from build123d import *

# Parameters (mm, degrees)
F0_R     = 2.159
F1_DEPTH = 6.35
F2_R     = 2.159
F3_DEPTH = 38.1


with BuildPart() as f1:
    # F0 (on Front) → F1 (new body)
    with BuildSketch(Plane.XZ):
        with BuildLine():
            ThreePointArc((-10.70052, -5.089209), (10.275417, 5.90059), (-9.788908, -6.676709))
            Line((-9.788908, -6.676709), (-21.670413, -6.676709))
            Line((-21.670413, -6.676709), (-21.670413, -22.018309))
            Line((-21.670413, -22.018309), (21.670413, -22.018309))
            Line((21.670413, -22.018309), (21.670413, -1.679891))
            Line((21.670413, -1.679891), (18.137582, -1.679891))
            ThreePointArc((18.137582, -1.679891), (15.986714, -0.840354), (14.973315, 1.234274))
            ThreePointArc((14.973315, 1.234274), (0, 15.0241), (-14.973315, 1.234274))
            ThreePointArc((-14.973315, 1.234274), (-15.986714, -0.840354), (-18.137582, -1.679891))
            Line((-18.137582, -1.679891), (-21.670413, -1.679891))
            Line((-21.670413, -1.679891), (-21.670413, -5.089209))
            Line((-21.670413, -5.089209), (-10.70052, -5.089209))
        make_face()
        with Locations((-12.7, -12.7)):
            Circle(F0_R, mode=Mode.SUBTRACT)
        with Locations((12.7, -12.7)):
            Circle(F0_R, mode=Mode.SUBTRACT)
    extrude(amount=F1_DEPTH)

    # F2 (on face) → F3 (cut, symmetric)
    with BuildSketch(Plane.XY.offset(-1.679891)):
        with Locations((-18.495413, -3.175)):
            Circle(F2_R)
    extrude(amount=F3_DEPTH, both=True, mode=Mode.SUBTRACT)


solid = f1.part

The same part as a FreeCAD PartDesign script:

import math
import FreeCAD as App
import Part
import Sketcher
from FreeCAD import Vector
Q = App.Units.Quantity

doc = App.newDocument("Part")
body = doc.addObject("PartDesign::Body", "Body")

# Sketch on XZ plane
sketch1 = body.newObject("Sketcher::SketchObject", "Sketch")
sketch1.AttachmentSupport = (doc.getObject("XZ_Plane"), [""])
sketch1.MapMode = "FlatFace"
sketch1.addGeometry([
    Part.ArcOfCircle(Part.Circle(Vector(0, 0, 0), Vector(0, 0, 1), 11.8), math.radians(-146), math.radians(205)),  # 0
    Part.LineSegment(Vector(-9.8, -6.7, 0), Vector(-21.7, -6.7, 0)),  # 1
    Part.LineSegment(Vector(-21.7, -6.7, 0), Vector(-21.7, -22, 0)),  # 2
    Part.LineSegment(Vector(-21.7, -22, 0), Vector(21.7, -22, 0)),  # 3
    Part.LineSegment(Vector(21.7, -22, 0), Vector(21.7, -1.7, 0)),  # 4
    Part.LineSegment(Vector(21.7, -1.7, 0), Vector(18.1, -1.7, 0)),  # 5
    Part.ArcOfCircle(Part.Circle(Vector(18.1, 1.5, 0), Vector(0, 0, 1), 3.2), math.radians(-175), math.radians(-90)),  # 6
    Part.ArcOfCircle(Part.Circle(Vector(0, 0, 0), Vector(0, 0, 1), 15), math.radians(5), math.radians(175)),  # 7
    Part.ArcOfCircle(Part.Circle(Vector(-18.1, 1.5, 0), Vector(0, 0, 1), 3.2), math.radians(-90), math.radians(-5)),  # 8
    Part.LineSegment(Vector(-18.1, -1.7, 0), Vector(-21.7, -1.7, 0)),  # 9
    Part.LineSegment(Vector(-21.7, -1.7, 0), Vector(-21.7, -5.1, 0)),  # 10
    Part.LineSegment(Vector(-21.7, -5.1, 0), Vector(-10.7, -5.1, 0)),  # 11
    Part.Circle(Vector(-12.7, -12.7, 0), Vector(0, 0, 1), 2.2),  # 12
    Part.Circle(Vector(12.7, -12.7, 0), Vector(0, 0, 1), 2.2),  # 13
], False)
sketch1.addConstraint([
    Sketcher.Constraint("Coincident", 0, 1, 1, 1),
    Sketcher.Constraint("Coincident", 1, 2, 2, 1),
    Sketcher.Constraint("Coincident", 2, 2, 3, 1),
    Sketcher.Constraint("Coincident", 3, 2, 4, 1),
    Sketcher.Constraint("Coincident", 4, 2, 5, 1),
    Sketcher.Constraint("Tangent", 5, 2, 6, 2),
    Sketcher.Constraint("Tangent", 6, 1, 7, 1),
    Sketcher.Constraint("Tangent", 7, 2, 8, 2),
    Sketcher.Constraint("Tangent", 8, 1, 9, 1),
    Sketcher.Constraint("Coincident", 9, 2, 10, 1),
    Sketcher.Constraint("Coincident", 10, 2, 11, 1),
    Sketcher.Constraint("Coincident", 11, 2, 0, 2),
    Sketcher.Constraint("Horizontal", 1),
    Sketcher.Constraint("Vertical", 2),
    Sketcher.Constraint("Horizontal", 3),
    Sketcher.Constraint("Vertical", 4),
    Sketcher.Constraint("Horizontal", 5),
    Sketcher.Constraint("Horizontal", 9),
    Sketcher.Constraint("Vertical", 10),
    Sketcher.Constraint("Horizontal", 11),
    Sketcher.Constraint("Coincident", 0, 3, -1, 1),
    Sketcher.Constraint("Coincident", 7, 3, -1, 1),
    Sketcher.Constraint("Equal", 6, 8),
    Sketcher.Constraint("Equal", 12, 13),
    Sketcher.Constraint("Symmetric", 12, 3, 13, 3, -2),
    Sketcher.Constraint("Symmetric", 4, 2, 9, 2, -2),
    Sketcher.Constraint("Vertical", 2, 2, 9, 2),
    Sketcher.Constraint("Diameter", 12, Q("0.17 in")),
    Sketcher.Constraint("Radius", 6, Q("0.125 in")),
    Sketcher.Constraint("DistanceX", 12, 3, 13, 3, Q("1 in")),
    Sketcher.Constraint("DistanceY", 12, 3, -1, 1, Q("0.5 in")),
    Sketcher.Constraint("Radius", 0, Q("0.4665 in")),
    Sketcher.Constraint("Radius", 7, Q("0.5915 in")),
    Sketcher.Constraint("DistanceY", 2, 2, 2, 1, Q("0.604 in")),
    Sketcher.Constraint("DistanceY", 1, 2, 10, 2, Q("0.0625 in")),
    Sketcher.Constraint("DistanceX", 5, 2, 5, 1, 3.532831),
    Sketcher.Constraint("DistanceY", 10, 2, 10, 1, 3.409318),
    Sketcher.Constraint("DistanceX", 1, 2, 1, 1, 11.881505),
])
pad1 = body.newObject("PartDesign::Pad", "Pad")
pad1.Profile = sketch1
pad1.Length = Q("0.25 in")

# Sketch on XY plane
sketch2 = body.newObject("Sketcher::SketchObject", "Sketch001")
sketch2.AttachmentSupport = (doc.getObject("XY_Plane"), [""])
sketch2.MapMode = "FlatFace"
sketch2.AttachmentOffset = App.Placement(Vector(0, 0, -1.679891), App.Rotation())
sketch2.addGeometry(Part.Circle(Vector(-18.5, -3.2, 0), Vector(0, 0, 1), 2.2), False)
sketch2.addConstraint([
    Sketcher.Constraint("Diameter", 0, Q("0.17 in")),
    Sketcher.Constraint("DistanceY", 0, 3, -1, 1, Q("0.125 in")),
    Sketcher.Constraint("DistanceX", 0, 3, -1, 1, 18.495413),
])
pocket1 = body.newObject("PartDesign::Pocket", "Pocket")
pocket1.Profile = sketch2
pocket1.Length = Q("3 in")
pocket1.Midplane = True

doc.recompute()
